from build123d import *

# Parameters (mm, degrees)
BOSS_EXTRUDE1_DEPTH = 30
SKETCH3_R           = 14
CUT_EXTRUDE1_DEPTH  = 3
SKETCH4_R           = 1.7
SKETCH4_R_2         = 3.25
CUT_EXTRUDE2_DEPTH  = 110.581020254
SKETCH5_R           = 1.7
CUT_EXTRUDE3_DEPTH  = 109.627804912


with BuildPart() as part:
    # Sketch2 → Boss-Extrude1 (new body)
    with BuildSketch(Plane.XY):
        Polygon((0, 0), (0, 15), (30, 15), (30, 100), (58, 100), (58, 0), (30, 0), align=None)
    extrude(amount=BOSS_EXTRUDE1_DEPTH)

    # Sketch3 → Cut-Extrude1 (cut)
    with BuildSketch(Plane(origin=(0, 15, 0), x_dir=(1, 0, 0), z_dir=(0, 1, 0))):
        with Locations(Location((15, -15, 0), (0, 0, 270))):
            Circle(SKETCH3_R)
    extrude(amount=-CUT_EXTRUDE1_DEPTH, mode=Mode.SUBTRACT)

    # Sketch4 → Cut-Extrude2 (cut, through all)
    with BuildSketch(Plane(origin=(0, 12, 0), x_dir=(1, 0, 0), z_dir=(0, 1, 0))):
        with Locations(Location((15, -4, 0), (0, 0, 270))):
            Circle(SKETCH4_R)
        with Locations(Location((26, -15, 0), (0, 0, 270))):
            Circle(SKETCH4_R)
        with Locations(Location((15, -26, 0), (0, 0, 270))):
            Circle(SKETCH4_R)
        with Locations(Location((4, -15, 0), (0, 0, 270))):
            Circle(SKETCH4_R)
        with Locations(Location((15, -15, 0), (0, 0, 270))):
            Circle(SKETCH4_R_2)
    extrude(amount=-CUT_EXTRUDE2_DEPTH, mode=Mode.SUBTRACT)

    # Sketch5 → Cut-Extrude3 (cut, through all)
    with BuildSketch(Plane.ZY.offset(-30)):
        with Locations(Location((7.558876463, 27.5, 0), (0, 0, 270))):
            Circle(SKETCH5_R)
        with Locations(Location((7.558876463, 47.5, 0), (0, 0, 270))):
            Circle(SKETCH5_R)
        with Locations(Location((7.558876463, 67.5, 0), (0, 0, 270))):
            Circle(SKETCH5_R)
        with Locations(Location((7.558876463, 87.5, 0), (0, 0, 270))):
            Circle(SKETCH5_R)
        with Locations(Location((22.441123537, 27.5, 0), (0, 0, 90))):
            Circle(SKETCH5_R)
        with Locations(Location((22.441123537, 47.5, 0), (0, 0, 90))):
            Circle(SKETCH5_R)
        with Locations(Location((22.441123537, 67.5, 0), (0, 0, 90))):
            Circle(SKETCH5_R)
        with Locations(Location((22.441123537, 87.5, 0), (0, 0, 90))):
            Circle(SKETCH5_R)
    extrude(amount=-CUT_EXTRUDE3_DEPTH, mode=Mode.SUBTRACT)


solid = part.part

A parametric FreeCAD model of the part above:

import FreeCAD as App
import Part
import Sketcher

V = App.Vector
Q = App.Units.Quantity


def add_polygon(sketch, points):
    """Adds a closed chain of lines whose ends are joined by coincident constraints."""
    first, n = sketch.GeometryCount, len(points)
    for a, b in zip(points, points[1:] + points[:1]):
        sketch.addGeometry(Part.LineSegment(App.Vector(*a, 0), App.Vector(*b, 0)), False)
    for i in range(n):
        sketch.addConstraint(Sketcher.Constraint("Coincident", first + i, 2, first + (i + 1) % n, 1))

doc = App.newDocument("Part")
body = doc.addObject("PartDesign::Body", "Body")

# Sketch on XY plane
sketch1 = body.newObject("Sketcher::SketchObject", "Sketch")
sketch1.AttachmentSupport = (doc.getObject("XY_Plane"), [""])
sketch1.MapMode = "FlatFace"
add_polygon(sketch1, [(0, 15), (0, 0), (58, 0), (58, 100), (30, 100), (30, 15)])  # lines 0-5
sketch1.addConstraint(Sketcher.Constraint("Vertical", 0))
sketch1.addConstraint(Sketcher.Constraint("Horizontal", 1))
sketch1.addConstraint(Sketcher.Constraint("Vertical", 2))
sketch1.addConstraint(Sketcher.Constraint("Horizontal", 3))
sketch1.addConstraint(Sketcher.Constraint("Vertical", 4))
sketch1.addConstraint(Sketcher.Constraint("Horizontal", 5))
sketch1.addConstraint(Sketcher.Constraint("Coincident", 0, 2, -1, 1))
sketch1.addConstraint(Sketcher.Constraint("DistanceX", 1, 1, 1, 2, Q("58 mm")))
sketch1.addConstraint(Sketcher.Constraint("DistanceX", 3, 2, 3, 1, Q("28 mm")))
sketch1.addConstraint(Sketcher.Constraint("DistanceY", 0, 2, 0, 1, Q("15 mm")))
sketch1.addConstraint(Sketcher.Constraint("DistanceY", 2, 1, 2, 2, Q("100 mm")))
pad1 = body.newObject("PartDesign::Pad", "Pad")
pad1.Profile = sketch1
pad1.Length = 30

# Sketch on XZ plane
sketch2 = body.newObject("Sketcher::SketchObject", "Sketch001")
sketch2.AttachmentSupport = (doc.getObject("XZ_Plane"), [""])
sketch2.MapMode = "FlatFace"
sketch2.AttachmentOffset = App.Placement(V(0, 0, -15), App.Rotation())
sketch2.addGeometry(Part.Circle(V(15, 15, 0), V(0, 0, 1), 14), False)
sketch2.addConstraint(Sketcher.Constraint("Diameter", 0, Q("28 mm")))
sketch2.addConstraint(Sketcher.Constraint("DistanceX", -1, 1, 0, 3, Q("15 mm")))
sketch2.addConstraint(Sketcher.Constraint("DistanceY", -1, 1, 0, 3, Q("15 mm")))
pocket1 = body.newObject("PartDesign::Pocket", "Pocket")
pocket1.Profile = sketch2
pocket1.Length = 3
pocket1.Reversed = True

# Sketch on XZ plane
sketch3 = body.newObject("Sketcher::SketchObject", "Sketch002")
sketch3.AttachmentSupport = (doc.getObject("XZ_Plane"), [""])
sketch3.MapMode = "FlatFace"
sketch3.AttachmentOffset = App.Placement(V(0, 0, -12), App.Rotation())
sketch3.addGeometry(Part.Circle(V(15, 4, 0), V(0, 0, 1), 1.7), False)
sketch3.addGeometry(Part.Circle(V(26, 15, 0), V(0, 0, 1), 1.7), False)
sketch3.addGeometry(Part.Circle(V(15, 26, 0), V(0, 0, 1), 1.7), False)
sketch3.addGeometry(Part.Circle(V(4, 15, 0), V(0, 0, 1), 1.7), False)
sketch3.addGeometry(Part.Circle(V(15, 15, 0), V(0, 0, 1), 3.2), False)
sketch3.addConstraint(Sketcher.Constraint("Equal", 0, 1))
sketch3.addConstraint(Sketcher.Constraint("Equal", 1, 2))
sketch3.addConstraint(Sketcher.Constraint("Equal", 2, 3))
sketch3.addConstraint(Sketcher.Constraint("Horizontal", 1, 3, 3, 3))
sketch3.addConstraint(Sketcher.Constraint("Horizontal", 3, 3, 4, 3))
sketch3.addConstraint(Sketcher.Constraint("Vertical", 0, 3, 2, 3))
sketch3.addConstraint(Sketcher.Constraint("Vertical", 2, 3, 4, 3))
sketch3.addConstraint(Sketcher.Constraint("Diameter", 0, Q("3.4 mm")))
sketch3.addConstraint(Sketcher.Constraint("Diameter", 4, Q("6.5 mm")))
sketch3.addConstraint(Sketcher.Constraint("DistanceX", -1, 1, 0, 3, Q("15 mm")))
sketch3.addConstraint(Sketcher.Constraint("DistanceY", -1, 1, 0, 3, Q("4 mm")))
sketch3.addConstraint(Sketcher.Constraint("DistanceX", -1, 1, 1, 3, Q("26 mm")))
sketch3.addConstraint(Sketcher.Constraint("DistanceY", -1, 1, 1, 3, Q("15 mm")))
sketch3.addConstraint(Sketcher.Constraint("DistanceY", -1, 1, 2, 3, Q("26 mm")))
sketch3.addConstraint(Sketcher.Constraint("DistanceX", -1, 1, 3, 3, Q("4 mm")))
pocket2 = body.newObject("PartDesign::Pocket", "Pocket001")
pocket2.Profile = sketch3
pocket2.Type = "ThroughAll"
pocket2.Reversed = True

# Sketch on YZ plane
sketch4 = body.newObject("Sketcher::SketchObject", "Sketch003")
sketch4.AttachmentSupport = (doc.getObject("YZ_Plane"), [""])
sketch4.MapMode = "FlatFace"
sketch4.AttachmentOffset = App.Placement(V(0, 0, 30), App.Rotation())
sketch4.addGeometry(Part.Circle(V(27.5, 7.6, 0), V(0, 0, 1), 1.7), False)
sketch4.addGeometry(Part.Circle(V(47.5, 7.6, 0), V(0, 0, 1), 1.7), False)
sketch4.addGeometry(Part.Circle(V(67.5, 7.6, 0), V(0, 0, 1), 1.7), False)
sketch4.addGeometry(Part.Circle(V(87.5, 7.6, 0), V(0, 0, 1), 1.7), False)
sketch4.addGeometry(Part.Circle(V(27.5, 22.4, 0), V(0, 0, 1), 1.7), False)
sketch4.addGeometry(Part.Circle(V(47.5, 22.4, 0), V(0, 0, 1), 1.7), False)
sketch4.addGeometry(Part.Circle(V(67.5, 22.4, 0), V(0, 0, 1), 1.7), False)
sketch4.addGeometry(Part.Circle(V(87.5, 22.4, 0), V(0, 0, 1), 1.7), False)
sketch4.addConstraint(Sketcher.Constraint("Equal", 0, 1))
sketch4.addConstraint(Sketcher.Constraint("Equal", 1, 2))
sketch4.addConstraint(Sketcher.Constraint("Equal", 2, 3))
sketch4.addConstraint(Sketcher.Constraint("Equal", 3, 4))
sketch4.addConstraint(Sketcher.Constraint("Equal", 4, 5))
sketch4.addConstraint(Sketcher.Constraint("Equal", 5, 6))
sketch4.addConstraint(Sketcher.Constraint("Equal", 6, 7))
sketch4.addConstraint(Sketcher.Constraint("Horizontal", 0, 3, 1, 3))
sketch4.addConstraint(Sketcher.Constraint("Horizontal", 1, 3, 2, 3))
sketch4.addConstraint(Sketcher.Constraint("Horizontal", 2, 3, 3, 3))
sketch4.addConstraint(Sketcher.Constraint("Horizontal", 4, 3, 5, 3))
sketch4.addConstraint(Sketcher.Constraint("Horizontal", 5, 3, 6, 3))
sketch4.addConstraint(Sketcher.Constraint("Horizontal", 6, 3, 7, 3))
sketch4.addConstraint(Sketcher.Constraint("Vertical", 0, 3, 4, 3))
sketch4.addConstraint(Sketcher.Constraint("Vertical", 1, 3, 5, 3))
sketch4.addConstraint(Sketcher.Constraint("Vertical", 2, 3, 6, 3))
sketch4.addConstraint(Sketcher.Constraint("Vertical", 3, 3, 7, 3))
sketch4.addConstraint(Sketcher.Constraint("Diameter", 0, Q("3.4 mm")))
sketch4.addConstraint(Sketcher.Constraint("DistanceX", 0, 3, 1, 3, Q("20 mm")))
sketch4.addConstraint(Sketcher.Constraint("DistanceX", 1, 3, 2, 3, Q("20 mm")))
sketch4.addConstraint(Sketcher.Constraint("DistanceX", 2, 3, 3, 3, Q("20 mm")))
sketch4.addConstraint(Sketcher.Constraint("DistanceX", -1, 1, 0, 3, Q("27.5 mm")))
sketch4.addConstraint(Sketcher.Constraint("DistanceY", -1, 1, 0, 3, Q("7.558876 mm")))
sketch4.addConstraint(Sketcher.Constraint("DistanceY", -1, 1, 4, 3, Q("22.441124 mm")))
pocket3 = body.newObject("PartDesign::Pocket", "Pocket002")
pocket3.Profile = sketch4
pocket3.Type = "ThroughAll"
pocket3.Reversed = True

doc.recompute()
